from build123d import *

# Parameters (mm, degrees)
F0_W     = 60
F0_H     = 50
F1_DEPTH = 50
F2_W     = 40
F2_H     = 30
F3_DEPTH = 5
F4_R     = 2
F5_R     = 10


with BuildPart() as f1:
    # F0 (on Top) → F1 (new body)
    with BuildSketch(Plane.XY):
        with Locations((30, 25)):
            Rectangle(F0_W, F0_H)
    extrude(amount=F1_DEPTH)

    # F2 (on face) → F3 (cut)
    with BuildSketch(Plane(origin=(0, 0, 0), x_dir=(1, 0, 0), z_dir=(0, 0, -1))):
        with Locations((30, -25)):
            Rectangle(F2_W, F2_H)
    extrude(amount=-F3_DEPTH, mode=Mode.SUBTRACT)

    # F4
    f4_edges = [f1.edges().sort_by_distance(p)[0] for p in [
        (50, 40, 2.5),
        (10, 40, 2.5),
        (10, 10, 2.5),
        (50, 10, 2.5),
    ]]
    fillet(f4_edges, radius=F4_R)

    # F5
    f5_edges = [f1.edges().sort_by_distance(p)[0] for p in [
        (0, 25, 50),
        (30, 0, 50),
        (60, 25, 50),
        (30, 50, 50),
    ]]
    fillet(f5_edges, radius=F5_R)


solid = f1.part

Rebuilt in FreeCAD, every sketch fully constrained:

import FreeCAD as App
import Part
import Sketcher

V = App.Vector
Q = App.Units.Quantity


def edges_at(feature, points):
    """Names of the edges that pass closest to the given points."""
    edges = feature.Shape.Edges
    near = lambda p: min(range(len(edges)), key=lambda i: edges[i].distToShape(Part.Vertex(*p))[0])
    return sorted({f"Edge{near(p) + 1}" for p in points})


def add_polygon(sketch, points):
    """Adds a closed chain of lines whose ends are joined by coincident constraints."""
    first, n = sketch.GeometryCount, len(points)
    for a, b in zip(points, points[1:] + points[:1]):
        sketch.addGeometry(Part.LineSegment(App.Vector(*a, 0), App.Vector(*b, 0)), False)
    for i in range(n):
        sketch.addConstraint(Sketcher.Constraint("Coincident", first + i, 2, first + (i + 1) % n, 1))

doc = App.newDocument("Part")
body = doc.addObject("PartDesign::Body", "Body")

sketch1 = body.newObject("Sketcher::SketchObject", "Sketch")
sketch1.AttachmentSupport = (doc.getObject("XY_Plane"), [""])
sketch1.MapMode = "FlatFace"
add_polygon(sketch1, [(0, 50), (0, 0), (60, 0), (60, 50)])
sketch1.addConstraint([
    Sketcher.Constraint("Vertical", 0),
    Sketcher.Constraint("Horizontal", 1),
    Sketcher.Constraint("Vertical", 2),
    Sketcher.Constraint("Horizontal", 3),
    Sketcher.Constraint("Coincident", 0, 2, -1, 1),
    Sketcher.Constraint("DistanceX", 1, 1, 1, 2, Q("60 mm")),
    Sketcher.Constraint("DistanceY", 0, 2, 0, 1, Q("50 mm")),
])
pad1 = body.newObject("PartDesign::Pad", "Pad")
pad1.Profile = sketch1
pad1.Length = 50

sketch2 = body.newObject("Sketcher::SketchObject", "Sketch001")
sketch2.AttachmentSupport = (doc.getObject("XY_Plane"), [""])
sketch2.MapMode = "FlatFace"
add_polygon(sketch2, [(10, 10), (10, 40), (50, 40), (50, 10)])
sketch2.addConstraint([
    Sketcher.Constraint("Vertical", 0),
    Sketcher.Constraint("Horizontal", 1),
    Sketcher.Constraint("Vertical", 2),
    Sketcher.Constraint("Horizontal", 3),
    Sketcher.Constraint("DistanceX", 1, 1, 1, 2, Q("40 mm")),
    Sketcher.Constraint("DistanceY", 0, 1, 0, 2, Q("30 mm")),
    Sketcher.Constraint("DistanceX", -1, 1, 0, 2, Q("10 mm")),
    Sketcher.Constraint("DistanceY", -1, 1, 0, 2, Q("40 mm")),
])
pocket1 = body.newObject("PartDesign::Pocket", "Pocket")
pocket1.Profile = sketch2
pocket1.Length = 5
pocket1.Reversed = True
doc.recompute()

fillet = body.newObject("PartDesign::Fillet", "Fillet")
fillet.Base = (pocket1, edges_at(pocket1, [
    (50, 40, 2.5),
    (10, 40, 2.5),
    (10, 10, 2.5),
    (50, 10, 2.5),
]))
fillet.Radius = 2
doc.recompute()

fillet2 = body.newObject("PartDesign::Fillet", "Fillet001")
fillet2.Base = (fillet, edges_at(fillet, [
    (0, 25, 50),
    (30, 0, 50),
    (60, 25, 50),
    (30, 50, 50),
]))
fillet2.Radius = 10

doc.recompute()
